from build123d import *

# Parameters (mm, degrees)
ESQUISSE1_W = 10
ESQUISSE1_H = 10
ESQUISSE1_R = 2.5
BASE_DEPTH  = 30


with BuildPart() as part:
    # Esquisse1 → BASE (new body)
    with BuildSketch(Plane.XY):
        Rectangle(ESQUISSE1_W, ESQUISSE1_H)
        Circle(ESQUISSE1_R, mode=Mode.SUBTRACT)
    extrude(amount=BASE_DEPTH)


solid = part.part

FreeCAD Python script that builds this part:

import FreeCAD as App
import Part
import Sketcher
from FreeCAD import Vector

doc = App.newDocument("Part")
body = doc.addObject("PartDesign::Body", "Body")

# Sketch on XY plane
sketch1 = body.newObject("Sketcher::SketchObject", "Sketch")
sketch1.AttachmentSupport = (doc.getObject("XY_Plane"), [""])
sketch1.MapMode = "FlatFace"
sketch1.addGeometry([
    Part.LineSegment(Vector(-5, 5, 0), Vector(-5, -5, 0)),  # 0
    Part.LineSegment(Vector(-5, -5, 0), Vector(5, -5, 0)),  # 1
    Part.LineSegment(Vector(5, -5, 0), Vector(5, 5, 0)),  # 2
    Part.LineSegment(Vector(5, 5, 0), Vector(-5, 5, 0)),  # 3
    Part.Circle(Vector(0, 0, 0), Vector(0, 0, 1), 2.5),  # 4
], False)
sketch1.addConstraint([
    Sketcher.Constraint("Coincident", 0, 2, 1, 1),
    Sketcher.Constraint("Coincident", 1, 2, 2, 1),
    Sketcher.Constraint("Coincident", 2, 2, 3, 1),
    Sketcher.Constraint("Coincident", 3, 2, 0, 1),
    Sketcher.Constraint("Vertical", 0),
    Sketcher.Constraint("Horizontal", 1),
    Sketcher.Constraint("Vertical", 2),
    Sketcher.Constraint("Horizontal", 3),
    Sketcher.Constraint("Coincident", 4, 3, -1, 1),
    Sketcher.Constraint("Symmetric", 0, 2, 2, 2, -1, 1),
    Sketcher.Constraint("Equal", 3, 0),
    Sketcher.Constraint("Diameter", 4, 5.0),
    Sketcher.Constraint("DistanceX", 1, 1, 1, 2, 10.0),
])
pad1 = body.newObject("PartDesign::Pad", "Pad")
pad1.Profile = sketch1
pad1.Length = 30

doc.recompute()
